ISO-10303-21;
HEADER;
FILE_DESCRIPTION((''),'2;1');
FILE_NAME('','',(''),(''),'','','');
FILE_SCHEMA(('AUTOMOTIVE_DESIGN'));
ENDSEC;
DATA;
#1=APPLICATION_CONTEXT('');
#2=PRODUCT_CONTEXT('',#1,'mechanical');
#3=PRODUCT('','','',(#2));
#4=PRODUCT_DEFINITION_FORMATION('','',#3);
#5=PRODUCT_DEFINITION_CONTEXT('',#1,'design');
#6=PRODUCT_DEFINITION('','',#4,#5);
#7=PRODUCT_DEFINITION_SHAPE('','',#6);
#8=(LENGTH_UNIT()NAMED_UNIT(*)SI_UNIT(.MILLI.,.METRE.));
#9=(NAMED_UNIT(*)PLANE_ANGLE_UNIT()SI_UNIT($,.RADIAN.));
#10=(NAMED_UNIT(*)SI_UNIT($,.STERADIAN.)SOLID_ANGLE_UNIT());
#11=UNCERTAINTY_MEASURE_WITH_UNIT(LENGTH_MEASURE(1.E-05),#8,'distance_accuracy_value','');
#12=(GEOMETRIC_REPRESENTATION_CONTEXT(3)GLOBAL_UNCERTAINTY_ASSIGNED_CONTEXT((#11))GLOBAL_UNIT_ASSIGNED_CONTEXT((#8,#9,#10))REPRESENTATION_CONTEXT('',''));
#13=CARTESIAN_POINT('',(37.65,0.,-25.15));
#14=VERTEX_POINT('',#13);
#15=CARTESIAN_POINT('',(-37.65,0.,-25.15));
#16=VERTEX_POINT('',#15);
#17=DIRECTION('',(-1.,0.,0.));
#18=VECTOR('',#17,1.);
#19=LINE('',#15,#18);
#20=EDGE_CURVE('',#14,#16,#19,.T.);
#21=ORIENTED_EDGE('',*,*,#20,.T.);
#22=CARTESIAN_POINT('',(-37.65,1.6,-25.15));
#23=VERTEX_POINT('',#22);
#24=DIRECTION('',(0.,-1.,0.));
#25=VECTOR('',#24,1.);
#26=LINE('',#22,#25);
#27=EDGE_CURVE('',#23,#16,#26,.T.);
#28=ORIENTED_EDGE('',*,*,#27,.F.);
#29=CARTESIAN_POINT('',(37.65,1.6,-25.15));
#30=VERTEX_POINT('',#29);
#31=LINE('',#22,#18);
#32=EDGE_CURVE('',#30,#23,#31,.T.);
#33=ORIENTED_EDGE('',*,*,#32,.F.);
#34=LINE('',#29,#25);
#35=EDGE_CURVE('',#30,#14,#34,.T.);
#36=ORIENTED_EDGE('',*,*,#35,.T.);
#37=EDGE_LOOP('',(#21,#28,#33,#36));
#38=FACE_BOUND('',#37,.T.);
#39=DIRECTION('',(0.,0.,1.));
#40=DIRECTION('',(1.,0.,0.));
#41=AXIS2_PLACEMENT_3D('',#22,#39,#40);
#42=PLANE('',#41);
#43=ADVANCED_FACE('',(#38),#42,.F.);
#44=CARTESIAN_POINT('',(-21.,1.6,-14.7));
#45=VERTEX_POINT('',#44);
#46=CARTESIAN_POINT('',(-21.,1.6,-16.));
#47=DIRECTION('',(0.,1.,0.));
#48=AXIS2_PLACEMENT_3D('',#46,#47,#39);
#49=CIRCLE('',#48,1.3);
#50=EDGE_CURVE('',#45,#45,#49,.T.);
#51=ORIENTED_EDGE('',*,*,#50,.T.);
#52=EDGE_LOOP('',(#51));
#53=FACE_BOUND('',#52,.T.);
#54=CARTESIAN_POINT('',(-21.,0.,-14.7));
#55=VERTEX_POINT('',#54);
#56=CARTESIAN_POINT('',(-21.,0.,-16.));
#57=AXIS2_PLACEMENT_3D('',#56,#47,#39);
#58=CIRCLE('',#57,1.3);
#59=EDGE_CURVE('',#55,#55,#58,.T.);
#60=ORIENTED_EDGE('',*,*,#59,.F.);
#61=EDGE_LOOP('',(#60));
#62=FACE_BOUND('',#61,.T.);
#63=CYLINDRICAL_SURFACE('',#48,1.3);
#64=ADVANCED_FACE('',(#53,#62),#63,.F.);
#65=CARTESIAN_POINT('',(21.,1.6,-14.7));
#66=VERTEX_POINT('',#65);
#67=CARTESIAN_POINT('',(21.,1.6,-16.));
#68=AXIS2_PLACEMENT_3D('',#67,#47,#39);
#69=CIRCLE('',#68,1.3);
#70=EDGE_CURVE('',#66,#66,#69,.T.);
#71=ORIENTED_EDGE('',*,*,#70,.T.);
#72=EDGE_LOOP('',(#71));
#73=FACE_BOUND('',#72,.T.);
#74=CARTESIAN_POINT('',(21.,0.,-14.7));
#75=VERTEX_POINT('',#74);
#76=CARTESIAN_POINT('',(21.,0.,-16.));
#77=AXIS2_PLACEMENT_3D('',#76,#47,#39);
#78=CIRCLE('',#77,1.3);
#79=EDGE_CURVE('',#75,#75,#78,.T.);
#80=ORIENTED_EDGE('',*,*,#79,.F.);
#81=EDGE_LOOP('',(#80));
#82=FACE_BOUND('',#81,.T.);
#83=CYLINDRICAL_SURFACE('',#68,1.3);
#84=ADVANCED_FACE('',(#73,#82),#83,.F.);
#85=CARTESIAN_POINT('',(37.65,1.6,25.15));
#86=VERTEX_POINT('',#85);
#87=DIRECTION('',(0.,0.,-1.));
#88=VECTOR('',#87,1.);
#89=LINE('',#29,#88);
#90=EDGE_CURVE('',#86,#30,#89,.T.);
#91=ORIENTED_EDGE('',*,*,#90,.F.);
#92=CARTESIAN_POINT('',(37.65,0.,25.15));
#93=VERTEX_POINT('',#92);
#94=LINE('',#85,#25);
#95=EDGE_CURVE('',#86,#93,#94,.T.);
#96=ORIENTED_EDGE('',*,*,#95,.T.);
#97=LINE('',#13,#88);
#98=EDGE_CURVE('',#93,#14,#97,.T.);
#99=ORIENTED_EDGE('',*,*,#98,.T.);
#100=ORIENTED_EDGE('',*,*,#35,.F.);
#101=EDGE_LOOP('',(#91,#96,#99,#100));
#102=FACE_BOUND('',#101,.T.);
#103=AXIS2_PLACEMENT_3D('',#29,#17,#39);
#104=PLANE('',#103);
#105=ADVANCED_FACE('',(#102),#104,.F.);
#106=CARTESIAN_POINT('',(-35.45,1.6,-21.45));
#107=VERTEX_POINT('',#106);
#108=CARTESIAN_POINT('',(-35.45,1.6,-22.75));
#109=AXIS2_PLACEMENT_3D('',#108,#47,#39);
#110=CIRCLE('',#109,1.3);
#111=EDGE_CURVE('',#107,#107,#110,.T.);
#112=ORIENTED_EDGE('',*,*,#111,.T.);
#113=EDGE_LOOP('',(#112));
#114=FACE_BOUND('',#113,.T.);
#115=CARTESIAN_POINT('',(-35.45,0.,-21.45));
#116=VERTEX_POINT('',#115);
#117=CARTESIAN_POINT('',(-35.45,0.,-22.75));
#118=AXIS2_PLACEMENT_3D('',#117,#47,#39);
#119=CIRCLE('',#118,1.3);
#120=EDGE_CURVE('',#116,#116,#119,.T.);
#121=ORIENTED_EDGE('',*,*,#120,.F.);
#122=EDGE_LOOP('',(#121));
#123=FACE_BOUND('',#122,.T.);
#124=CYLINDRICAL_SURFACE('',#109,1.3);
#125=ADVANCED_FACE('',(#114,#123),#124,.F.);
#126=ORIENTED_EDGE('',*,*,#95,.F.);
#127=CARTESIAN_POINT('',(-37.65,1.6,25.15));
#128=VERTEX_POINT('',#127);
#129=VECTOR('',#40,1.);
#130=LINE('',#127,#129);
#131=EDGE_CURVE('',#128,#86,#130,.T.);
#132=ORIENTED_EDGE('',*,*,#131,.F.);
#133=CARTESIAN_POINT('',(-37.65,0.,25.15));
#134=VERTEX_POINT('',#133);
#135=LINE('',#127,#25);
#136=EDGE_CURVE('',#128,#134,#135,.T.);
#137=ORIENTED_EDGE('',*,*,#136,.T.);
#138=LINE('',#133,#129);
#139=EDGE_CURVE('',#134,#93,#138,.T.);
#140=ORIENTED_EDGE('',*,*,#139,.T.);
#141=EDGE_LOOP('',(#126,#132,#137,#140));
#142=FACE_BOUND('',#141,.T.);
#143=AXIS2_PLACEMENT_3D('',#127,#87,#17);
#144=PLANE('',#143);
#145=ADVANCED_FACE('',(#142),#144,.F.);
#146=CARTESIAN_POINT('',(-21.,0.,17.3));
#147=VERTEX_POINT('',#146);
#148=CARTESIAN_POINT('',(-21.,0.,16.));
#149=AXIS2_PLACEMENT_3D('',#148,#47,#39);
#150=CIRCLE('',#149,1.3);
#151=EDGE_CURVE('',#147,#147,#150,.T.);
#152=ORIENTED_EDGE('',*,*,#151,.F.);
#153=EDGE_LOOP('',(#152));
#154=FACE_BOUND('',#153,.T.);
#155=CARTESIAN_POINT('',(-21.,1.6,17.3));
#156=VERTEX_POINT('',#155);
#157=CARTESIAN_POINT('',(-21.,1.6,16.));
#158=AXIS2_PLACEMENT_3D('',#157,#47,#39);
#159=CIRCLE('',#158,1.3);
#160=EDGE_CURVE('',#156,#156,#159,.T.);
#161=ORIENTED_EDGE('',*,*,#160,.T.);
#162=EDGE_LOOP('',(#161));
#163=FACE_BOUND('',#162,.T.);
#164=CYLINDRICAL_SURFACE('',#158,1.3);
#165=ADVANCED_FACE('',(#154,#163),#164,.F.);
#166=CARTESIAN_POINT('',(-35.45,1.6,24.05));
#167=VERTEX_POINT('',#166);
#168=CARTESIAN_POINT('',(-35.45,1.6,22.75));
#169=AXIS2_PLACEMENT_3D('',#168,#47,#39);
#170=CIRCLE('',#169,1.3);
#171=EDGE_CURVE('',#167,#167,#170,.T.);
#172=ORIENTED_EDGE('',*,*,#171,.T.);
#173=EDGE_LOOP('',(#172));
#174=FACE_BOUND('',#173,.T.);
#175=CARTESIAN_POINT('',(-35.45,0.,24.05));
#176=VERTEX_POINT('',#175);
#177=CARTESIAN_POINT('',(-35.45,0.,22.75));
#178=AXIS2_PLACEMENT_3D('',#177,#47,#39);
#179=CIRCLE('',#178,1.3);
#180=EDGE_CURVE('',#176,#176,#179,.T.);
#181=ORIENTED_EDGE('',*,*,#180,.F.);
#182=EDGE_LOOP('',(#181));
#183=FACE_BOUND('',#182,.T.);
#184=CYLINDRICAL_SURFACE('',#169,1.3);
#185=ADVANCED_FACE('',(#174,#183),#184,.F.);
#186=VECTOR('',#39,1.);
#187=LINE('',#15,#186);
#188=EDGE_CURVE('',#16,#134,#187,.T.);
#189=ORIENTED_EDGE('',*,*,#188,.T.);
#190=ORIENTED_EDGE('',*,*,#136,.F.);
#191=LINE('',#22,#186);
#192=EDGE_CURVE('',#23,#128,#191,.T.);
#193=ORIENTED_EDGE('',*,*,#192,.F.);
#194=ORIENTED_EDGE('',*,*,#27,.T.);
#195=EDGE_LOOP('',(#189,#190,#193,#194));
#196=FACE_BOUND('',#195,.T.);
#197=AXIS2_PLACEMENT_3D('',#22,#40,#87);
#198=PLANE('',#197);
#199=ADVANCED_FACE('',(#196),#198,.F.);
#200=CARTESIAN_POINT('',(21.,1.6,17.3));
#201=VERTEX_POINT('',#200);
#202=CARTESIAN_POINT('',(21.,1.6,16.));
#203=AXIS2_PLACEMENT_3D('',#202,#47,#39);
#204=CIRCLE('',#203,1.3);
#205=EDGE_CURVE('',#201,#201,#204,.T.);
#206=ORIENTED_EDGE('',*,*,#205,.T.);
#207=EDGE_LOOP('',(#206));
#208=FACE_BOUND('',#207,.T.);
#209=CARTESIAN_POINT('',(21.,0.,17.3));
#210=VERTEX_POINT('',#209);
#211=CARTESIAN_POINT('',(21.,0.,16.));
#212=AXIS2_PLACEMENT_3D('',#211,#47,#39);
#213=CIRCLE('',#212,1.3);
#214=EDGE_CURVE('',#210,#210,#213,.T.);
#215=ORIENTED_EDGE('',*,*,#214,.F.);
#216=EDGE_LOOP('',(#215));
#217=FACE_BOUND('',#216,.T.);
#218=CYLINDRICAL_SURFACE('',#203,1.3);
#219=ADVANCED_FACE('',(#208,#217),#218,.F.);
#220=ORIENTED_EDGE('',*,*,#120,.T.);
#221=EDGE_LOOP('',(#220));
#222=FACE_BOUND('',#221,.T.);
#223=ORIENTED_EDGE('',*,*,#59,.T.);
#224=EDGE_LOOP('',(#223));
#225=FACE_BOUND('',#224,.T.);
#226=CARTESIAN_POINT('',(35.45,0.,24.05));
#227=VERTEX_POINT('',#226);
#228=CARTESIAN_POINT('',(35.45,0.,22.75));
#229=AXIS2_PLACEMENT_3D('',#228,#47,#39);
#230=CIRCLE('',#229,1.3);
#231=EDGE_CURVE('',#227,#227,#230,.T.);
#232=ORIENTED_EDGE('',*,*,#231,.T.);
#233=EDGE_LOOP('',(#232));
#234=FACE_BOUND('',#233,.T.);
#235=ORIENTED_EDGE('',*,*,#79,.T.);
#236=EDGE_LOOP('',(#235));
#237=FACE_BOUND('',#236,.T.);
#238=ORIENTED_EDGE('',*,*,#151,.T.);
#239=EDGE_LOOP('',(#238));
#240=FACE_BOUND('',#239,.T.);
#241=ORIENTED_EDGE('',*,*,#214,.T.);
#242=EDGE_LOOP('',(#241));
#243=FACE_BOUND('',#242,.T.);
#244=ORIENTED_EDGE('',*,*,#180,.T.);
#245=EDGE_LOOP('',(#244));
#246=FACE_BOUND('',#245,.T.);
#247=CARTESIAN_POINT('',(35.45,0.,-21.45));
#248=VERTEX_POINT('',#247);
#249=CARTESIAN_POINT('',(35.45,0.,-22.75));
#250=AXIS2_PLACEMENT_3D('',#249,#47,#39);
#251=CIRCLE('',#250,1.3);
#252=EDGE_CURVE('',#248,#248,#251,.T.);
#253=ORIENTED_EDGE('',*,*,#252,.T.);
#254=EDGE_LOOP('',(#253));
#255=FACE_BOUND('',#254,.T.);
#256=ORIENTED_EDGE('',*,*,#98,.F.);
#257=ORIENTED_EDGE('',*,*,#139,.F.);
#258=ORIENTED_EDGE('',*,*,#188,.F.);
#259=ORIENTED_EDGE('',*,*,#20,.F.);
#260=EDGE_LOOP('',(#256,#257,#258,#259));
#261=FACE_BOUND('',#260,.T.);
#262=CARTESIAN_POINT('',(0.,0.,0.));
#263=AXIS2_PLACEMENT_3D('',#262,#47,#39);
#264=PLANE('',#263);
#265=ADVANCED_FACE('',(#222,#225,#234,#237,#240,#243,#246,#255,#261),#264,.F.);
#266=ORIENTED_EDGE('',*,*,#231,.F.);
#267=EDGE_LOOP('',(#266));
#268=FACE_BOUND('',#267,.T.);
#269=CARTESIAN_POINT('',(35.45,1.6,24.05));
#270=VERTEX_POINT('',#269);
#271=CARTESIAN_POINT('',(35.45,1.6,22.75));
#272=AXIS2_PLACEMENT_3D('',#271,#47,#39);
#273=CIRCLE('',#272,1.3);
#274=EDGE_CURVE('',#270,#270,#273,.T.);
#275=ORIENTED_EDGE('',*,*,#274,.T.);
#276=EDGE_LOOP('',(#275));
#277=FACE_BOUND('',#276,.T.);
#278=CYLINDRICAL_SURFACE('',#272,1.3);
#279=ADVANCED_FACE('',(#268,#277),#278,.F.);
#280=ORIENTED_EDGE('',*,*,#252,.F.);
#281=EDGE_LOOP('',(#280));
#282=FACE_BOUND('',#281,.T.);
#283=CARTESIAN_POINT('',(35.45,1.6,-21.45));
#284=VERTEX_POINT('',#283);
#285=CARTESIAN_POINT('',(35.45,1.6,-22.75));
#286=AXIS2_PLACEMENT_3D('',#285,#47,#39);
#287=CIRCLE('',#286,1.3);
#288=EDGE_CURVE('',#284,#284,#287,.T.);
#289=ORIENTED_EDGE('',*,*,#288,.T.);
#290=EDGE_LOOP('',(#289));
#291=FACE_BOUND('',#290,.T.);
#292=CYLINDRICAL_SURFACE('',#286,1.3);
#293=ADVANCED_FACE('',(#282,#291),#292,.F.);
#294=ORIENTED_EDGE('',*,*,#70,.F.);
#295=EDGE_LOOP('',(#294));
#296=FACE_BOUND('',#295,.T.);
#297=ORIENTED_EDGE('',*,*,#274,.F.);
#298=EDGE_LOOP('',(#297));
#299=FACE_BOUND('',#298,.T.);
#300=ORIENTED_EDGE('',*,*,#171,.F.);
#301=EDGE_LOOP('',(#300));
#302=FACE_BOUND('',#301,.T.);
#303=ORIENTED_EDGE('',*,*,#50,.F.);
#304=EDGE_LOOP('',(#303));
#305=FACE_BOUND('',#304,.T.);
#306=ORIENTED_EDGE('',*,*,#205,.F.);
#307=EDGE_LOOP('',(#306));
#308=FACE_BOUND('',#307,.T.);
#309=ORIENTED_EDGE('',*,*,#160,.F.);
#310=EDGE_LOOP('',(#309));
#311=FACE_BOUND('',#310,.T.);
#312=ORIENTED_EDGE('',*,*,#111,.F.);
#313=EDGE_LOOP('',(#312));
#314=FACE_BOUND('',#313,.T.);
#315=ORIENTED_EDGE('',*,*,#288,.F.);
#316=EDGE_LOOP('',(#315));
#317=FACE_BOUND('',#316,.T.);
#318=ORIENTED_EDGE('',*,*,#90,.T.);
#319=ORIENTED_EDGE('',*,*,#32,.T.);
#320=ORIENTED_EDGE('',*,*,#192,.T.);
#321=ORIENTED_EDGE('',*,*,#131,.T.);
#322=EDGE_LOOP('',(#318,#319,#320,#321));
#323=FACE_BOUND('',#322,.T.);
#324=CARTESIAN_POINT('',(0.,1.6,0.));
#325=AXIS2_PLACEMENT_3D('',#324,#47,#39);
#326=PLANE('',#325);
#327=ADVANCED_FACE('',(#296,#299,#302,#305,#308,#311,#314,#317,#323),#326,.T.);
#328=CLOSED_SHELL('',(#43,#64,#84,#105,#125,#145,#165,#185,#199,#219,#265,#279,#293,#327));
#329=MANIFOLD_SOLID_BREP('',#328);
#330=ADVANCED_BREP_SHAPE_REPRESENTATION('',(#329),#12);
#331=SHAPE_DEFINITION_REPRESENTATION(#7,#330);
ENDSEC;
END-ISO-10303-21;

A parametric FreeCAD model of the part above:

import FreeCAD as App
import Part
import Sketcher

V = App.Vector

doc = App.newDocument("Part")
params = doc.addObject("Spreadsheet::Sheet", "Params")
for row, (alias, value) in enumerate([
    ("sketch1_width", "75.3 mm"),
    ("sketch1_height", "50.3 mm"),
    ("pad1_length", "1.6 mm"),
    ("sketch2_diameter", "2.6 mm"),
    ("hole_diameter", "2.6 mm"),
    ("sketch3_diameter", "2.6 mm"),
    ("hole2_diameter", "2.6 mm"),
], start=1):
    params.set(f"A{row}", alias)
    params.set(f"B{row}", "=" + value)
    params.setAlias(f"B{row}", alias)

body = doc.addObject("PartDesign::Body", "Body")

# Sketch on XZ plane
sketch1 = doc.addObject("Sketcher::SketchObject", "Sketch")
body.addObject(sketch1)
sketch1.AttachmentSupport = (doc.XZ_Plane, [""])
sketch1.MapMode = "FlatFace"
sketch1.addGeometry([
    Part.LineSegment(V(-38, -25, 0), V(-38, 25, 0)),
    Part.LineSegment(V(-38, 25, 0), V(38, 25, 0)),
    Part.LineSegment(V(38, 25, 0), V(38, -25, 0)),
    Part.LineSegment(V(38, -25, 0), V(-38, -25, 0)),
], False)
sketch1.addConstraint([
    Sketcher.Constraint("Coincident", 0, 2, 1, 1),
    Sketcher.Constraint("Coincident", 1, 2, 2, 1),
    Sketcher.Constraint("Coincident", 2, 2, 3, 1),
    Sketcher.Constraint("Coincident", 3, 2, 0, 1),
    Sketcher.Constraint("Vertical", 0),
    Sketcher.Constraint("Horizontal", 1),
    Sketcher.Constraint("Vertical", 2),
    Sketcher.Constraint("Horizontal", 3),
    Sketcher.Constraint("Symmetric", 0, 2, 2, 2, -1, 1),
    Sketcher.Constraint("DistanceX", 1, 1, 1, 2, 75.3),
    Sketcher.Constraint("DistanceY", 0, 1, 0, 2, 50.3),
])
sketch1.setExpression("Constraints[9]", "Params.sketch1_width")
sketch1.setExpression("Constraints[10]", "Params.sketch1_height")
pad1 = doc.addObject("PartDesign::Pad", "Pad")
body.addObject(pad1)
pad1.Profile = sketch1
pad1.setExpression("Length", "Params.pad1_length")
pad1.Reversed = True

# Sketch on XZ plane
sketch2 = doc.addObject("Sketcher::SketchObject", "Sketch001")
body.addObject(sketch2)
sketch2.AttachmentSupport = (doc.XZ_Plane, [""])
sketch2.MapMode = "FlatFace"
sketch2.AttachmentOffset = App.Placement(V(0, 0, -1.6), App.Rotation())
sketch2.addGeometry([
    Part.Circle(V(-35.5, -22.8, 0), V(0, 0, 1), 1.3),
    Part.Circle(V(35.5, -22.8, 0), V(0, 0, 1), 1.3),
    Part.Circle(V(35.5, 22.8, 0), V(0, 0, 1), 1.3),
    Part.Circle(V(-35.5, 22.8, 0), V(0, 0, 1), 1.3),
], False)
sketch2.addConstraint([
    Sketcher.Constraint("Equal", 0, 1),
    Sketcher.Constraint("Equal", 1, 2),
    Sketcher.Constraint("Equal", 2, 3),
    Sketcher.Constraint("Symmetric", 0, 3, 2, 3, -1, 1),
    Sketcher.Constraint("Symmetric", 1, 3, 3, 3, -1, 1),
    Sketcher.Constraint("Symmetric", 0, 3, 1, 3, -2),
    Sketcher.Constraint("Diameter", 0, 2.6),
    Sketcher.Constraint("DistanceX", 0, 3, 1, 3, 70.9),
    Sketcher.Constraint("DistanceY", 1, 3, 2, 3, 45.5),
])
sketch2.setExpression("Constraints[6]", "Params.sketch2_diameter")
doc.recompute()
hole = doc.addObject("PartDesign::Hole", "Hole")
body.addObject(hole)
hole.Profile = sketch2
hole.ThreadType = "None"
hole.setExpression("Diameter", "Params.hole_diameter")
hole.DepthType = "ThroughAll"
hole.Reversed = True

# Sketch on XZ plane
sketch3 = doc.addObject("Sketcher::SketchObject", "Sketch002")
body.addObject(sketch3)
sketch3.AttachmentSupport = (doc.XZ_Plane, [""])
sketch3.MapMode = "FlatFace"
sketch3.AttachmentOffset = App.Placement(V(0, 0, -1.6), App.Rotation())
sketch3.addGeometry([
    Part.Circle(V(-21, -16, 0), V(0, 0, 1), 1.3),
    Part.Circle(V(21, -16, 0), V(0, 0, 1), 1.3),
    Part.Circle(V(21, 16, 0), V(0, 0, 1), 1.3),
    Part.Circle(V(-21, 16, 0), V(0, 0, 1), 1.3),
], False)
sketch3.addConstraint([
    Sketcher.Constraint("Equal", 0, 1),
    Sketcher.Constraint("Equal", 1, 2),
    Sketcher.Constraint("Equal", 2, 3),
    Sketcher.Constraint("Symmetric", 0, 3, 2, 3, -1, 1),
    Sketcher.Constraint("Symmetric", 1, 3, 3, 3, -1, 1),
    Sketcher.Constraint("Symmetric", 0, 3, 1, 3, -2),
    Sketcher.Constraint("Diameter", 0, 2.6),
    Sketcher.Constraint("DistanceX", 0, 3, -1, 1, 21.0),
    Sketcher.Constraint("DistanceY", 0, 3, -1, 1, 16.0),
])
sketch3.setExpression("Constraints[6]", "Params.sketch3_diameter")
doc.recompute()
hole2 = doc.addObject("PartDesign::Hole", "Hole001")
body.addObject(hole2)
hole2.Profile = sketch3
hole2.ThreadType = "None"
hole2.setExpression("Diameter", "Params.hole2_diameter")
hole2.DepthType = "ThroughAll"
hole2.Reversed = True

doc.recompute()
